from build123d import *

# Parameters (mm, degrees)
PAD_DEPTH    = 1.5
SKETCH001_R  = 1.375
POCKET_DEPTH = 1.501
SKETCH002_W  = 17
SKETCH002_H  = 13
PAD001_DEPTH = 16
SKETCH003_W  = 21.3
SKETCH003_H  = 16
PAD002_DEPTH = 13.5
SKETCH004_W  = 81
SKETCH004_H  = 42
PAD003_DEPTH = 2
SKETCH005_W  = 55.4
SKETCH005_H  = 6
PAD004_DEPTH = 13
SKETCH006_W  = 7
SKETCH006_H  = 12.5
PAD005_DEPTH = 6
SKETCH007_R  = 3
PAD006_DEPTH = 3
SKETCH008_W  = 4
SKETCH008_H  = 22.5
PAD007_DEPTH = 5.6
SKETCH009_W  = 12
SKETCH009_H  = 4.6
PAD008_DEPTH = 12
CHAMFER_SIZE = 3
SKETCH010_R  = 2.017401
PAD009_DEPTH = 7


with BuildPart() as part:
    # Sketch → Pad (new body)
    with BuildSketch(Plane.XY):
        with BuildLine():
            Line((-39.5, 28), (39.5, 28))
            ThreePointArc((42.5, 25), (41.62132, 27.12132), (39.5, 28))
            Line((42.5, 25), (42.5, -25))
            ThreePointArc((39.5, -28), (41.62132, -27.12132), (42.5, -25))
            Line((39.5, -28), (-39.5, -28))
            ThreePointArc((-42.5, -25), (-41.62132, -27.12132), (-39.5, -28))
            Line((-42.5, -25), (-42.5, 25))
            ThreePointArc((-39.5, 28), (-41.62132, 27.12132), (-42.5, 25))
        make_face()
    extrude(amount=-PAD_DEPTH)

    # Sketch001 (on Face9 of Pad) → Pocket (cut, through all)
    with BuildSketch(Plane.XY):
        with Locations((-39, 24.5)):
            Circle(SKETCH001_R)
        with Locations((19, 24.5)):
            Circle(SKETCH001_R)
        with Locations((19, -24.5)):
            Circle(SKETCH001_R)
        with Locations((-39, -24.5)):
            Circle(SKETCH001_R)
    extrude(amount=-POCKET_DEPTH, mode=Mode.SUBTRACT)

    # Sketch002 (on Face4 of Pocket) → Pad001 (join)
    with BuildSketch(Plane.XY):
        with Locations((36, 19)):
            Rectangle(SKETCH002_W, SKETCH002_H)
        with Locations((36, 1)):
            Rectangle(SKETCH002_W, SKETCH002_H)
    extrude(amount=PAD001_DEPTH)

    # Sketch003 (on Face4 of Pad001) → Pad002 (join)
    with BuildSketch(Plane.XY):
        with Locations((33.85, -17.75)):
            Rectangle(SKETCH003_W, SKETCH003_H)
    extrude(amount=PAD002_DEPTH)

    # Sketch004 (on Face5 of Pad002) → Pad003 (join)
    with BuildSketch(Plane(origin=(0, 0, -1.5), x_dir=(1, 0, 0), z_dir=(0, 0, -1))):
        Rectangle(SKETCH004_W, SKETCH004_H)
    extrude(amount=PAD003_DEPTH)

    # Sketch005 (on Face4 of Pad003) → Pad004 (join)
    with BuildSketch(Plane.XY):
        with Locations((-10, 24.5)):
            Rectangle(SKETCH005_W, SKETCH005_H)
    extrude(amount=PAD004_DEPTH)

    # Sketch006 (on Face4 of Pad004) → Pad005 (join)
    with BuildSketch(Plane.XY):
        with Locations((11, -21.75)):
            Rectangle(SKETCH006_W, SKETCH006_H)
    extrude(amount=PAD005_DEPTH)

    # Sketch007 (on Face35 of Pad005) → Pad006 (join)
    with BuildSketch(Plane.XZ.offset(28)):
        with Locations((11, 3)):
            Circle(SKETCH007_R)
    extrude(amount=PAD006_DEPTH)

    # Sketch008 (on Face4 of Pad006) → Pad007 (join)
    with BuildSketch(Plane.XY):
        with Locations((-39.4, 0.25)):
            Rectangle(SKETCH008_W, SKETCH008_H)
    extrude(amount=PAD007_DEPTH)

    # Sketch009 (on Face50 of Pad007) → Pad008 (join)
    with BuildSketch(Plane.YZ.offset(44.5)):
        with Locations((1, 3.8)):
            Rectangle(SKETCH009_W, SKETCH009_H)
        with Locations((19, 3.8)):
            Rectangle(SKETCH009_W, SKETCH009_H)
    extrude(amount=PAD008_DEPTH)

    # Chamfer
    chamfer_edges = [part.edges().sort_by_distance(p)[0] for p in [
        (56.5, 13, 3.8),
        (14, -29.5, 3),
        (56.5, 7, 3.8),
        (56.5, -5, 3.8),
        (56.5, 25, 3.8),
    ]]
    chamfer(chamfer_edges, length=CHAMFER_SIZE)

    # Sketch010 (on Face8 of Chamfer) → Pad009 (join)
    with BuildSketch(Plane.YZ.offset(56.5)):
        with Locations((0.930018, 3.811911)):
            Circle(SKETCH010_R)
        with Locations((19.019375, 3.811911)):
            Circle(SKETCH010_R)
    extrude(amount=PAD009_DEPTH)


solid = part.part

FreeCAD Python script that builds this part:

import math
import FreeCAD as App
import Part
import Sketcher


def edges_at(feature, points):
    """Names of the edges that pass closest to the given points."""
    edges = feature.Shape.Edges
    near = lambda p: min(range(len(edges)), key=lambda i: edges[i].distToShape(Part.Vertex(*p))[0])
    return sorted({f"Edge{near(p) + 1}" for p in points})


def add_polygon(sketch, points):
    """Adds a closed chain of lines whose ends are joined by coincident constraints."""
    first, n = sketch.GeometryCount, len(points)
    for a, b in zip(points, points[1:] + points[:1]):
        sketch.addGeometry(Part.LineSegment(App.Vector(*a, 0), App.Vector(*b, 0)), False)
    for i in range(n):
        sketch.addConstraint(Sketcher.Constraint("Coincident", first + i, 2, first + (i + 1) % n, 1))

doc = App.newDocument("Part")
body = doc.addObject("PartDesign::Body", "Body")

# Sketch on XY plane
sketch1 = body.newObject("Sketcher::SketchObject", "Sketch")
sketch1.AttachmentSupport = (doc.getObject("XY_Plane"), [""])
sketch1.MapMode = "FlatFace"
sketch1.addGeometry(Part.LineSegment(App.Vector(39.5, 28, 0), App.Vector(-39.5, 28, 0)), False)
sketch1.addGeometry(Part.ArcOfCircle(Part.Circle(App.Vector(-39.499999, 24.999999, 0), App.Vector(0, 0, 1), 3.000001), math.radians(90.000022), math.radians(179.999978)), False)
sketch1.addGeometry(Part.LineSegment(App.Vector(-42.5, 25, 0), App.Vector(-42.5, -25, 0)), False)
sketch1.addGeometry(Part.ArcOfCircle(Part.Circle(App.Vector(-39.499999, -24.999999, 0), App.Vector(0, 0, 1), 3.000001), math.radians(-179.999978), math.radians(-90.000022)), False)
sketch1.addGeometry(Part.LineSegment(App.Vector(-39.5, -28, 0), App.Vector(39.5, -28, 0)), False)
sketch1.addGeometry(Part.ArcOfCircle(Part.Circle(App.Vector(39.499999, -24.999999, 0), App.Vector(0, 0, 1), 3.000001), math.radians(-89.999978), math.radians(-0.000022)), False)
sketch1.addGeometry(Part.LineSegment(App.Vector(42.5, -25, 0), App.Vector(42.5, 25, 0)), False)
sketch1.addGeometry(Part.ArcOfCircle(Part.Circle(App.Vector(39.499999, 24.999999, 0), App.Vector(0, 0, 1), 3.000001), math.radians(0.000022), math.radians(89.999978)), False)
sketch1.addConstraint(Sketcher.Constraint("Tangent", 0, 2, 1, 1))
sketch1.addConstraint(Sketcher.Constraint("Tangent", 1, 2, 2, 1))
sketch1.addConstraint(Sketcher.Constraint("Tangent", 2, 2, 3, 1))
sketch1.addConstraint(Sketcher.Constraint("Tangent", 3, 2, 4, 1))
sketch1.addConstraint(Sketcher.Constraint("Tangent", 4, 2, 5, 1))
sketch1.addConstraint(Sketcher.Constraint("Tangent", 5, 2, 6, 1))
sketch1.addConstraint(Sketcher.Constraint("Tangent", 6, 2, 7, 1))
sketch1.addConstraint(Sketcher.Constraint("Tangent", 7, 2, 0, 1))
sketch1.addConstraint(Sketcher.Constraint("Horizontal", 0))
sketch1.addConstraint(Sketcher.Constraint("Vertical", 2))
sketch1.addConstraint(Sketcher.Constraint("Horizontal", 4))
sketch1.addConstraint(Sketcher.Constraint("Vertical", 6))
sketch1.addConstraint(Sketcher.Constraint("Equal", 1, 3))
sketch1.addConstraint(Sketcher.Constraint("Equal", 3, 5))
sketch1.addConstraint(Sketcher.Constraint("Equal", 5, 7))
sketch1.addConstraint(Sketcher.Constraint("Symmetric", 1, 3, 5, 3, -1, 1))
sketch1.addConstraint(Sketcher.Constraint("Radius", 1, 3.000001))
sketch1.addConstraint(Sketcher.Constraint("DistanceX", 0, 2, 0, 1, 79.0))
sketch1.addConstraint(Sketcher.Constraint("DistanceY", 2, 2, 2, 1, 50.0))
pad1 = body.newObject("PartDesign::Pad", "Pad")
pad1.Profile = sketch1
pad1.Length = 1.5
pad1.Reversed = True

# Sketch on XY plane
sketch2 = body.newObject("Sketcher::SketchObject", "Sketch001")
sketch2.AttachmentSupport = (doc.getObject("XY_Plane"), [""])
sketch2.MapMode = "FlatFace"
sketch2.addGeometry(Part.Circle(App.Vector(-39, 24.5, 0), App.Vector(0, 0, 1), 1.375), False)
sketch2.addGeometry(Part.Circle(App.Vector(19, 24.5, 0), App.Vector(0, 0, 1), 1.375), False)
sketch2.addGeometry(Part.Circle(App.Vector(19, -24.5, 0), App.Vector(0, 0, 1), 1.375), False)
sketch2.addGeometry(Part.Circle(App.Vector(-39, -24.5, 0), App.Vector(0, 0, 1), 1.375), False)
sketch2.addConstraint(Sketcher.Constraint("Equal", 0, 1))
sketch2.addConstraint(Sketcher.Constraint("Equal", 1, 2))
sketch2.addConstraint(Sketcher.Constraint("Equal", 2, 3))
sketch2.addConstraint(Sketcher.Constraint("Symmetric", 1, 3, 2, 3, -1))
sketch2.addConstraint(Sketcher.Constraint("Symmetric", 0, 3, 3, 3, -1))
sketch2.addConstraint(Sketcher.Constraint("Horizontal", 0, 3, 1, 3))
sketch2.addConstraint(Sketcher.Constraint("Diameter", 0, 2.75))
sketch2.addConstraint(Sketcher.Constraint("DistanceX", 0, 3, -1, 1, 39.0))
sketch2.addConstraint(Sketcher.Constraint("DistanceX", -1, 1, 1, 3, 19.0))
sketch2.addConstraint(Sketcher.Constraint("DistanceY", 2, 3, 1, 3, 49.0))
pocket1 = body.newObject("PartDesign::Pocket", "Pocket")
pocket1.Profile = sketch2
pocket1.Type = "ThroughAll"

# Sketch on XY plane
sketch3 = body.newObject("Sketcher::SketchObject", "Sketch002")
sketch3.AttachmentSupport = (doc.getObject("XY_Plane"), [""])
sketch3.MapMode = "FlatFace"
add_polygon(sketch3, [(27.5, 25.5), (27.5, 12.5), (44.5, 12.5), (44.5, 25.5)])  # lines 0-3
add_polygon(sketch3, [(27.5, 7.5), (27.5, -5.5), (44.5, -5.5), (44.5, 7.5)])  # lines 4-7
sketch3.addConstraint(Sketcher.Constraint("Vertical", 0))
sketch3.addConstraint(Sketcher.Constraint("Horizontal", 1))
sketch3.addConstraint(Sketcher.Constraint("Vertical", 2))
sketch3.addConstraint(Sketcher.Constraint("Horizontal", 3))
sketch3.addConstraint(Sketcher.Constraint("Vertical", 4))
sketch3.addConstraint(Sketcher.Constraint("Horizontal", 5))
sketch3.addConstraint(Sketcher.Constraint("Vertical", 6))
sketch3.addConstraint(Sketcher.Constraint("Horizontal", 7))
sketch3.addConstraint(Sketcher.Constraint("Vertical", 3, 2, 4, 2))
sketch3.addConstraint(Sketcher.Constraint("Vertical", 2, 2, 5, 2))
sketch3.addConstraint(Sketcher.Constraint("Equal", 2, 4))
sketch3.addConstraint(Sketcher.Constraint("DistanceX", 1, 1, 1, 2, 17.0))
sketch3.addConstraint(Sketcher.Constraint("DistanceY", 0, 2, 0, 1, 13.0))
sketch3.addConstraint(Sketcher.Constraint("DistanceY", 4, 2, 0, 2, 18.0))
sketch3.addConstraint(Sketcher.Constraint("DistanceX", -1, 1, 0, 2, 27.5))
sketch3.addConstraint(Sketcher.Constraint("DistanceY", -1, 1, 0, 2, 12.5))
pad2 = body.newObject("PartDesign::Pad", "Pad001")
pad2.Profile = sketch3
pad2.Length = 16

# Sketch on XY plane
sketch4 = body.newObject("Sketcher::SketchObject", "Sketch003")
sketch4.AttachmentSupport = (doc.getObject("XY_Plane"), [""])
sketch4.MapMode = "FlatFace"
add_polygon(sketch4, [(23.2, -9.75), (23.2, -25.75), (44.5, -25.75), (44.5, -9.75)])  # lines 0-3
sketch4.addConstraint(Sketcher.Constraint("Vertical", 0))
sketch4.addConstraint(Sketcher.Constraint("Horizontal", 1))
sketch4.addConstraint(Sketcher.Constraint("Vertical", 2))
sketch4.addConstraint(Sketcher.Constraint("Horizontal", 3))
sketch4.addConstraint(Sketcher.Constraint("DistanceY", 0, 2, 0, 1, 16.0))
sketch4.addConstraint(Sketcher.Constraint("DistanceX", 1, 1, 1, 2, 21.3))
sketch4.addConstraint(Sketcher.Constraint("DistanceX", -1, 1, 0, 2, 23.2))
sketch4.addConstraint(Sketcher.Constraint("DistanceY", 0, 2, -1, 1, 25.75))
pad3 = body.newObject("PartDesign::Pad", "Pad002")
pad3.Profile = sketch4
pad3.Length = 13.5

# Sketch on XY plane
sketch5 = body.newObject("Sketcher::SketchObject", "Sketch004")
sketch5.AttachmentSupport = (doc.getObject("XY_Plane"), [""])
sketch5.MapMode = "FlatFace"
sketch5.AttachmentOffset = App.Placement(App.Vector(0, 0, -1.5), App.Rotation())
add_polygon(sketch5, [(-40.5, -21), (-40.5, 21), (40.5, 21), (40.5, -21)])  # lines 0-3
sketch5.addConstraint(Sketcher.Constraint("Vertical", 0))
sketch5.addConstraint(Sketcher.Constraint("Horizontal", 1))
sketch5.addConstraint(Sketcher.Constraint("Vertical", 2))
sketch5.addConstraint(Sketcher.Constraint("Horizontal", 3))
sketch5.addConstraint(Sketcher.Constraint("Symmetric", 0, 2, 2, 2, -1, 1))
sketch5.addConstraint(Sketcher.Constraint("DistanceX", 1, 1, 1, 2, 81.0))
sketch5.addConstraint(Sketcher.Constraint("DistanceY", 0, 1, 0, 2, 42.0))
pad4 = body.newObject("PartDesign::Pad", "Pad003")
pad4.Profile = sketch5
pad4.Length = 2
pad4.Reversed = True

# Sketch on XY plane
sketch6 = body.newObject("Sketcher::SketchObject", "Sketch005")
sketch6.AttachmentSupport = (doc.getObject("XY_Plane"), [""])
sketch6.MapMode = "FlatFace"
add_polygon(sketch6, [(-37.7, 27.5), (-37.7, 21.5), (17.7, 21.5), (17.7, 27.5)])  # lines 0-3
sketch6.addConstraint(Sketcher.Constraint("Vertical", 0))
sketch6.addConstraint(Sketcher.Constraint("Horizontal", 1))
sketch6.addConstraint(Sketcher.Constraint("Vertical", 2))
sketch6.addConstraint(Sketcher.Constraint("Horizontal", 3))
sketch6.addConstraint(Sketcher.Constraint("DistanceY", 0, 2, 0, 1, 6.0))
sketch6.addConstraint(Sketcher.Constraint("DistanceX", 1, 1, 1, 2, 55.4))
sketch6.addConstraint(Sketcher.Constraint("DistanceX", 0, 2, -1, 1, 37.7))
sketch6.addConstraint(Sketcher.Constraint("DistanceY", -1, 1, 0, 2, 21.5))
pad5 = body.newObject("PartDesign::Pad", "Pad004")
pad5.Profile = sketch6
pad5.Length = 13

# Sketch on XY plane
sketch7 = body.newObject("Sketcher::SketchObject", "Sketch006")
sketch7.AttachmentSupport = (doc.getObject("XY_Plane"), [""])
sketch7.MapMode = "FlatFace"
add_polygon(sketch7, [(7.5, -15.5), (7.5, -28), (14.5, -28), (14.5, -15.5)])  # lines 0-3
sketch7.addConstraint(Sketcher.Constraint("Vertical", 0))
sketch7.addConstraint(Sketcher.Constraint("Horizontal", 1))
sketch7.addConstraint(Sketcher.Constraint("Vertical", 2))
sketch7.addConstraint(Sketcher.Constraint("Horizontal", 3))
sketch7.addConstraint(Sketcher.Constraint("DistanceX", 1, 1, 1, 2, 7.0))
sketch7.addConstraint(Sketcher.Constraint("DistanceY", 0, 2, 0, 1, 12.5))
sketch7.addConstraint(Sketcher.Constraint("DistanceY", 0, 2, -1, 1, 28.0))
sketch7.addConstraint(Sketcher.Constraint("DistanceX", -1, 1, 0, 2, 7.5))
pad6 = body.newObject("PartDesign::Pad", "Pad005")
pad6.Profile = sketch7
pad6.Length = 6

# Sketch on XZ plane
sketch8 = body.newObject("Sketcher::SketchObject", "Sketch007")
sketch8.AttachmentSupport = (doc.getObject("XZ_Plane"), [""])
sketch8.MapMode = "FlatFace"
sketch8.AttachmentOffset = App.Placement(App.Vector(0, 0, 28), App.Rotation())
sketch8.addGeometry(Part.Circle(App.Vector(11, 3, 0), App.Vector(0, 0, 1), 3), False)
sketch8.addConstraint(Sketcher.Constraint("Diameter", 0, 6.0))
sketch8.addConstraint(Sketcher.Constraint("DistanceX", -1, 1, 0, 3, 11.0))
sketch8.addConstraint(Sketcher.Constraint("DistanceY", -1, 1, 0, 3, 3.0))
pad7 = body.newObject("PartDesign::Pad", "Pad006")
pad7.Profile = sketch8
pad7.Length = 3

# Sketch on XY plane
sketch9 = body.newObject("Sketcher::SketchObject", "Sketch008")
sketch9.AttachmentSupport = (doc.getObject("XY_Plane"), [""])
sketch9.MapMode = "FlatFace"
add_polygon(sketch9, [(-41.4, 11.5), (-41.4, -11), (-37.4, -11), (-37.4, 11.5)])  # lines 0-3
sketch9.addConstraint(Sketcher.Constraint("Vertical", 0))
sketch9.addConstraint(Sketcher.Constraint("Horizontal", 1))
sketch9.addConstraint(Sketcher.Constraint("Vertical", 2))
sketch9.addConstraint(Sketcher.Constraint("Horizontal", 3))
sketch9.addConstraint(Sketcher.Constraint("DistanceX", 1, 1, 1, 2, 4.0))
sketch9.addConstraint(Sketcher.Constraint("DistanceY", 0, 2, 0, 1, 22.5))
sketch9.addConstraint(Sketcher.Constraint("DistanceY", 0, 2, -1, 1, 11.0))
sketch9.addConstraint(Sketcher.Constraint("DistanceX", 0, 2, -1, 1, 41.4))
pad8 = body.newObject("PartDesign::Pad", "Pad007")
pad8.Profile = sketch9
pad8.Length = 5.6

# Sketch on YZ plane
sketch10 = body.newObject("Sketcher::SketchObject", "Sketch009")
sketch10.AttachmentSupport = (doc.getObject("YZ_Plane"), [""])
sketch10.MapMode = "FlatFace"
sketch10.AttachmentOffset = App.Placement(App.Vector(0, 0, 44.5), App.Rotation())
add_polygon(sketch10, [(-5, 6.1), (-5, 1.5), (7, 1.5), (7, 6.1)])  # lines 0-3
add_polygon(sketch10, [(13, 6.1), (13, 1.5), (25, 1.5), (25, 6.1)])  # lines 4-7
sketch10.addConstraint(Sketcher.Constraint("Vertical", 0))
sketch10.addConstraint(Sketcher.Constraint("Horizontal", 1))
sketch10.addConstraint(Sketcher.Constraint("Vertical", 2))
sketch10.addConstraint(Sketcher.Constraint("Horizontal", 3))
sketch10.addConstraint(Sketcher.Constraint("Vertical", 4))
sketch10.addConstraint(Sketcher.Constraint("Horizontal", 5))
sketch10.addConstraint(Sketcher.Constraint("Vertical", 6))
sketch10.addConstraint(Sketcher.Constraint("Horizontal", 7))
sketch10.addConstraint(Sketcher.Constraint("Horizontal", 1, 2, 4, 2))
sketch10.addConstraint(Sketcher.Constraint("Horizontal", 3, 2, 6, 2))
sketch10.addConstraint(Sketcher.Constraint("Equal", 3, 5))
sketch10.addConstraint(Sketcher.Constraint("DistanceX", 1, 1, 1, 2, 12.0))
sketch10.addConstraint(Sketcher.Constraint("DistanceY", 0, 2, 0, 1, 4.6))
sketch10.addConstraint(Sketcher.Constraint("DistanceX", 0, 2, -1, 1, 5.0))
sketch10.addConstraint(Sketcher.Constraint("DistanceX", -1, 1, 4, 2, 13.0))
sketch10.addConstraint(Sketcher.Constraint("DistanceY", -1, 1, 0, 2, 1.5))
pad9 = body.newObject("PartDesign::Pad", "Pad008")
pad9.Profile = sketch10
pad9.Length = 12
doc.recompute()

chamfer = body.newObject("PartDesign::Chamfer", "Chamfer")
chamfer.Base = (pad9, edges_at(pad9, [
    (56.5, 13, 3.8),
    (14, -29.5, 3),
    (56.5, 7, 3.8),
    (56.5, -5, 3.8),
    (56.5, 25, 3.8),
]))
chamfer.Size = 3

# Sketch on YZ plane
sketch11 = body.newObject("Sketcher::SketchObject", "Sketch010")
sketch11.AttachmentSupport = (doc.getObject("YZ_Plane"), [""])
sketch11.MapMode = "FlatFace"
sketch11.AttachmentOffset = App.Placement(App.Vector(0, 0, 56.5), App.Rotation())
sketch11.addGeometry(Part.Circle(App.Vector(0.930018, 3.811911, 0), App.Vector(0, 0, 1), 2.017401), False)
sketch11.addGeometry(Part.Circle(App.Vector(19.019375, 3.811911, 0), App.Vector(0, 0, 1), 2.017401), False)
sketch11.addConstraint(Sketcher.Constraint("Equal", 0, 1))
sketch11.addConstraint(Sketcher.Constraint("Horizontal", 0, 3, 1, 3))
sketch11.addConstraint(Sketcher.Constraint("Diameter", 0, 4.034802))
sketch11.addConstraint(Sketcher.Constraint("DistanceX", -1, 1, 0, 3, 0.930018))
sketch11.addConstraint(Sketcher.Constraint("DistanceY", -1, 1, 0, 3, 3.811911))
sketch11.addConstraint(Sketcher.Constraint("DistanceX", -1, 1, 1, 3, 19.019375))
pad10 = body.newObject("PartDesign::Pad", "Pad009")
pad10.Profile = sketch11
pad10.Length = 7

doc.recompute()
